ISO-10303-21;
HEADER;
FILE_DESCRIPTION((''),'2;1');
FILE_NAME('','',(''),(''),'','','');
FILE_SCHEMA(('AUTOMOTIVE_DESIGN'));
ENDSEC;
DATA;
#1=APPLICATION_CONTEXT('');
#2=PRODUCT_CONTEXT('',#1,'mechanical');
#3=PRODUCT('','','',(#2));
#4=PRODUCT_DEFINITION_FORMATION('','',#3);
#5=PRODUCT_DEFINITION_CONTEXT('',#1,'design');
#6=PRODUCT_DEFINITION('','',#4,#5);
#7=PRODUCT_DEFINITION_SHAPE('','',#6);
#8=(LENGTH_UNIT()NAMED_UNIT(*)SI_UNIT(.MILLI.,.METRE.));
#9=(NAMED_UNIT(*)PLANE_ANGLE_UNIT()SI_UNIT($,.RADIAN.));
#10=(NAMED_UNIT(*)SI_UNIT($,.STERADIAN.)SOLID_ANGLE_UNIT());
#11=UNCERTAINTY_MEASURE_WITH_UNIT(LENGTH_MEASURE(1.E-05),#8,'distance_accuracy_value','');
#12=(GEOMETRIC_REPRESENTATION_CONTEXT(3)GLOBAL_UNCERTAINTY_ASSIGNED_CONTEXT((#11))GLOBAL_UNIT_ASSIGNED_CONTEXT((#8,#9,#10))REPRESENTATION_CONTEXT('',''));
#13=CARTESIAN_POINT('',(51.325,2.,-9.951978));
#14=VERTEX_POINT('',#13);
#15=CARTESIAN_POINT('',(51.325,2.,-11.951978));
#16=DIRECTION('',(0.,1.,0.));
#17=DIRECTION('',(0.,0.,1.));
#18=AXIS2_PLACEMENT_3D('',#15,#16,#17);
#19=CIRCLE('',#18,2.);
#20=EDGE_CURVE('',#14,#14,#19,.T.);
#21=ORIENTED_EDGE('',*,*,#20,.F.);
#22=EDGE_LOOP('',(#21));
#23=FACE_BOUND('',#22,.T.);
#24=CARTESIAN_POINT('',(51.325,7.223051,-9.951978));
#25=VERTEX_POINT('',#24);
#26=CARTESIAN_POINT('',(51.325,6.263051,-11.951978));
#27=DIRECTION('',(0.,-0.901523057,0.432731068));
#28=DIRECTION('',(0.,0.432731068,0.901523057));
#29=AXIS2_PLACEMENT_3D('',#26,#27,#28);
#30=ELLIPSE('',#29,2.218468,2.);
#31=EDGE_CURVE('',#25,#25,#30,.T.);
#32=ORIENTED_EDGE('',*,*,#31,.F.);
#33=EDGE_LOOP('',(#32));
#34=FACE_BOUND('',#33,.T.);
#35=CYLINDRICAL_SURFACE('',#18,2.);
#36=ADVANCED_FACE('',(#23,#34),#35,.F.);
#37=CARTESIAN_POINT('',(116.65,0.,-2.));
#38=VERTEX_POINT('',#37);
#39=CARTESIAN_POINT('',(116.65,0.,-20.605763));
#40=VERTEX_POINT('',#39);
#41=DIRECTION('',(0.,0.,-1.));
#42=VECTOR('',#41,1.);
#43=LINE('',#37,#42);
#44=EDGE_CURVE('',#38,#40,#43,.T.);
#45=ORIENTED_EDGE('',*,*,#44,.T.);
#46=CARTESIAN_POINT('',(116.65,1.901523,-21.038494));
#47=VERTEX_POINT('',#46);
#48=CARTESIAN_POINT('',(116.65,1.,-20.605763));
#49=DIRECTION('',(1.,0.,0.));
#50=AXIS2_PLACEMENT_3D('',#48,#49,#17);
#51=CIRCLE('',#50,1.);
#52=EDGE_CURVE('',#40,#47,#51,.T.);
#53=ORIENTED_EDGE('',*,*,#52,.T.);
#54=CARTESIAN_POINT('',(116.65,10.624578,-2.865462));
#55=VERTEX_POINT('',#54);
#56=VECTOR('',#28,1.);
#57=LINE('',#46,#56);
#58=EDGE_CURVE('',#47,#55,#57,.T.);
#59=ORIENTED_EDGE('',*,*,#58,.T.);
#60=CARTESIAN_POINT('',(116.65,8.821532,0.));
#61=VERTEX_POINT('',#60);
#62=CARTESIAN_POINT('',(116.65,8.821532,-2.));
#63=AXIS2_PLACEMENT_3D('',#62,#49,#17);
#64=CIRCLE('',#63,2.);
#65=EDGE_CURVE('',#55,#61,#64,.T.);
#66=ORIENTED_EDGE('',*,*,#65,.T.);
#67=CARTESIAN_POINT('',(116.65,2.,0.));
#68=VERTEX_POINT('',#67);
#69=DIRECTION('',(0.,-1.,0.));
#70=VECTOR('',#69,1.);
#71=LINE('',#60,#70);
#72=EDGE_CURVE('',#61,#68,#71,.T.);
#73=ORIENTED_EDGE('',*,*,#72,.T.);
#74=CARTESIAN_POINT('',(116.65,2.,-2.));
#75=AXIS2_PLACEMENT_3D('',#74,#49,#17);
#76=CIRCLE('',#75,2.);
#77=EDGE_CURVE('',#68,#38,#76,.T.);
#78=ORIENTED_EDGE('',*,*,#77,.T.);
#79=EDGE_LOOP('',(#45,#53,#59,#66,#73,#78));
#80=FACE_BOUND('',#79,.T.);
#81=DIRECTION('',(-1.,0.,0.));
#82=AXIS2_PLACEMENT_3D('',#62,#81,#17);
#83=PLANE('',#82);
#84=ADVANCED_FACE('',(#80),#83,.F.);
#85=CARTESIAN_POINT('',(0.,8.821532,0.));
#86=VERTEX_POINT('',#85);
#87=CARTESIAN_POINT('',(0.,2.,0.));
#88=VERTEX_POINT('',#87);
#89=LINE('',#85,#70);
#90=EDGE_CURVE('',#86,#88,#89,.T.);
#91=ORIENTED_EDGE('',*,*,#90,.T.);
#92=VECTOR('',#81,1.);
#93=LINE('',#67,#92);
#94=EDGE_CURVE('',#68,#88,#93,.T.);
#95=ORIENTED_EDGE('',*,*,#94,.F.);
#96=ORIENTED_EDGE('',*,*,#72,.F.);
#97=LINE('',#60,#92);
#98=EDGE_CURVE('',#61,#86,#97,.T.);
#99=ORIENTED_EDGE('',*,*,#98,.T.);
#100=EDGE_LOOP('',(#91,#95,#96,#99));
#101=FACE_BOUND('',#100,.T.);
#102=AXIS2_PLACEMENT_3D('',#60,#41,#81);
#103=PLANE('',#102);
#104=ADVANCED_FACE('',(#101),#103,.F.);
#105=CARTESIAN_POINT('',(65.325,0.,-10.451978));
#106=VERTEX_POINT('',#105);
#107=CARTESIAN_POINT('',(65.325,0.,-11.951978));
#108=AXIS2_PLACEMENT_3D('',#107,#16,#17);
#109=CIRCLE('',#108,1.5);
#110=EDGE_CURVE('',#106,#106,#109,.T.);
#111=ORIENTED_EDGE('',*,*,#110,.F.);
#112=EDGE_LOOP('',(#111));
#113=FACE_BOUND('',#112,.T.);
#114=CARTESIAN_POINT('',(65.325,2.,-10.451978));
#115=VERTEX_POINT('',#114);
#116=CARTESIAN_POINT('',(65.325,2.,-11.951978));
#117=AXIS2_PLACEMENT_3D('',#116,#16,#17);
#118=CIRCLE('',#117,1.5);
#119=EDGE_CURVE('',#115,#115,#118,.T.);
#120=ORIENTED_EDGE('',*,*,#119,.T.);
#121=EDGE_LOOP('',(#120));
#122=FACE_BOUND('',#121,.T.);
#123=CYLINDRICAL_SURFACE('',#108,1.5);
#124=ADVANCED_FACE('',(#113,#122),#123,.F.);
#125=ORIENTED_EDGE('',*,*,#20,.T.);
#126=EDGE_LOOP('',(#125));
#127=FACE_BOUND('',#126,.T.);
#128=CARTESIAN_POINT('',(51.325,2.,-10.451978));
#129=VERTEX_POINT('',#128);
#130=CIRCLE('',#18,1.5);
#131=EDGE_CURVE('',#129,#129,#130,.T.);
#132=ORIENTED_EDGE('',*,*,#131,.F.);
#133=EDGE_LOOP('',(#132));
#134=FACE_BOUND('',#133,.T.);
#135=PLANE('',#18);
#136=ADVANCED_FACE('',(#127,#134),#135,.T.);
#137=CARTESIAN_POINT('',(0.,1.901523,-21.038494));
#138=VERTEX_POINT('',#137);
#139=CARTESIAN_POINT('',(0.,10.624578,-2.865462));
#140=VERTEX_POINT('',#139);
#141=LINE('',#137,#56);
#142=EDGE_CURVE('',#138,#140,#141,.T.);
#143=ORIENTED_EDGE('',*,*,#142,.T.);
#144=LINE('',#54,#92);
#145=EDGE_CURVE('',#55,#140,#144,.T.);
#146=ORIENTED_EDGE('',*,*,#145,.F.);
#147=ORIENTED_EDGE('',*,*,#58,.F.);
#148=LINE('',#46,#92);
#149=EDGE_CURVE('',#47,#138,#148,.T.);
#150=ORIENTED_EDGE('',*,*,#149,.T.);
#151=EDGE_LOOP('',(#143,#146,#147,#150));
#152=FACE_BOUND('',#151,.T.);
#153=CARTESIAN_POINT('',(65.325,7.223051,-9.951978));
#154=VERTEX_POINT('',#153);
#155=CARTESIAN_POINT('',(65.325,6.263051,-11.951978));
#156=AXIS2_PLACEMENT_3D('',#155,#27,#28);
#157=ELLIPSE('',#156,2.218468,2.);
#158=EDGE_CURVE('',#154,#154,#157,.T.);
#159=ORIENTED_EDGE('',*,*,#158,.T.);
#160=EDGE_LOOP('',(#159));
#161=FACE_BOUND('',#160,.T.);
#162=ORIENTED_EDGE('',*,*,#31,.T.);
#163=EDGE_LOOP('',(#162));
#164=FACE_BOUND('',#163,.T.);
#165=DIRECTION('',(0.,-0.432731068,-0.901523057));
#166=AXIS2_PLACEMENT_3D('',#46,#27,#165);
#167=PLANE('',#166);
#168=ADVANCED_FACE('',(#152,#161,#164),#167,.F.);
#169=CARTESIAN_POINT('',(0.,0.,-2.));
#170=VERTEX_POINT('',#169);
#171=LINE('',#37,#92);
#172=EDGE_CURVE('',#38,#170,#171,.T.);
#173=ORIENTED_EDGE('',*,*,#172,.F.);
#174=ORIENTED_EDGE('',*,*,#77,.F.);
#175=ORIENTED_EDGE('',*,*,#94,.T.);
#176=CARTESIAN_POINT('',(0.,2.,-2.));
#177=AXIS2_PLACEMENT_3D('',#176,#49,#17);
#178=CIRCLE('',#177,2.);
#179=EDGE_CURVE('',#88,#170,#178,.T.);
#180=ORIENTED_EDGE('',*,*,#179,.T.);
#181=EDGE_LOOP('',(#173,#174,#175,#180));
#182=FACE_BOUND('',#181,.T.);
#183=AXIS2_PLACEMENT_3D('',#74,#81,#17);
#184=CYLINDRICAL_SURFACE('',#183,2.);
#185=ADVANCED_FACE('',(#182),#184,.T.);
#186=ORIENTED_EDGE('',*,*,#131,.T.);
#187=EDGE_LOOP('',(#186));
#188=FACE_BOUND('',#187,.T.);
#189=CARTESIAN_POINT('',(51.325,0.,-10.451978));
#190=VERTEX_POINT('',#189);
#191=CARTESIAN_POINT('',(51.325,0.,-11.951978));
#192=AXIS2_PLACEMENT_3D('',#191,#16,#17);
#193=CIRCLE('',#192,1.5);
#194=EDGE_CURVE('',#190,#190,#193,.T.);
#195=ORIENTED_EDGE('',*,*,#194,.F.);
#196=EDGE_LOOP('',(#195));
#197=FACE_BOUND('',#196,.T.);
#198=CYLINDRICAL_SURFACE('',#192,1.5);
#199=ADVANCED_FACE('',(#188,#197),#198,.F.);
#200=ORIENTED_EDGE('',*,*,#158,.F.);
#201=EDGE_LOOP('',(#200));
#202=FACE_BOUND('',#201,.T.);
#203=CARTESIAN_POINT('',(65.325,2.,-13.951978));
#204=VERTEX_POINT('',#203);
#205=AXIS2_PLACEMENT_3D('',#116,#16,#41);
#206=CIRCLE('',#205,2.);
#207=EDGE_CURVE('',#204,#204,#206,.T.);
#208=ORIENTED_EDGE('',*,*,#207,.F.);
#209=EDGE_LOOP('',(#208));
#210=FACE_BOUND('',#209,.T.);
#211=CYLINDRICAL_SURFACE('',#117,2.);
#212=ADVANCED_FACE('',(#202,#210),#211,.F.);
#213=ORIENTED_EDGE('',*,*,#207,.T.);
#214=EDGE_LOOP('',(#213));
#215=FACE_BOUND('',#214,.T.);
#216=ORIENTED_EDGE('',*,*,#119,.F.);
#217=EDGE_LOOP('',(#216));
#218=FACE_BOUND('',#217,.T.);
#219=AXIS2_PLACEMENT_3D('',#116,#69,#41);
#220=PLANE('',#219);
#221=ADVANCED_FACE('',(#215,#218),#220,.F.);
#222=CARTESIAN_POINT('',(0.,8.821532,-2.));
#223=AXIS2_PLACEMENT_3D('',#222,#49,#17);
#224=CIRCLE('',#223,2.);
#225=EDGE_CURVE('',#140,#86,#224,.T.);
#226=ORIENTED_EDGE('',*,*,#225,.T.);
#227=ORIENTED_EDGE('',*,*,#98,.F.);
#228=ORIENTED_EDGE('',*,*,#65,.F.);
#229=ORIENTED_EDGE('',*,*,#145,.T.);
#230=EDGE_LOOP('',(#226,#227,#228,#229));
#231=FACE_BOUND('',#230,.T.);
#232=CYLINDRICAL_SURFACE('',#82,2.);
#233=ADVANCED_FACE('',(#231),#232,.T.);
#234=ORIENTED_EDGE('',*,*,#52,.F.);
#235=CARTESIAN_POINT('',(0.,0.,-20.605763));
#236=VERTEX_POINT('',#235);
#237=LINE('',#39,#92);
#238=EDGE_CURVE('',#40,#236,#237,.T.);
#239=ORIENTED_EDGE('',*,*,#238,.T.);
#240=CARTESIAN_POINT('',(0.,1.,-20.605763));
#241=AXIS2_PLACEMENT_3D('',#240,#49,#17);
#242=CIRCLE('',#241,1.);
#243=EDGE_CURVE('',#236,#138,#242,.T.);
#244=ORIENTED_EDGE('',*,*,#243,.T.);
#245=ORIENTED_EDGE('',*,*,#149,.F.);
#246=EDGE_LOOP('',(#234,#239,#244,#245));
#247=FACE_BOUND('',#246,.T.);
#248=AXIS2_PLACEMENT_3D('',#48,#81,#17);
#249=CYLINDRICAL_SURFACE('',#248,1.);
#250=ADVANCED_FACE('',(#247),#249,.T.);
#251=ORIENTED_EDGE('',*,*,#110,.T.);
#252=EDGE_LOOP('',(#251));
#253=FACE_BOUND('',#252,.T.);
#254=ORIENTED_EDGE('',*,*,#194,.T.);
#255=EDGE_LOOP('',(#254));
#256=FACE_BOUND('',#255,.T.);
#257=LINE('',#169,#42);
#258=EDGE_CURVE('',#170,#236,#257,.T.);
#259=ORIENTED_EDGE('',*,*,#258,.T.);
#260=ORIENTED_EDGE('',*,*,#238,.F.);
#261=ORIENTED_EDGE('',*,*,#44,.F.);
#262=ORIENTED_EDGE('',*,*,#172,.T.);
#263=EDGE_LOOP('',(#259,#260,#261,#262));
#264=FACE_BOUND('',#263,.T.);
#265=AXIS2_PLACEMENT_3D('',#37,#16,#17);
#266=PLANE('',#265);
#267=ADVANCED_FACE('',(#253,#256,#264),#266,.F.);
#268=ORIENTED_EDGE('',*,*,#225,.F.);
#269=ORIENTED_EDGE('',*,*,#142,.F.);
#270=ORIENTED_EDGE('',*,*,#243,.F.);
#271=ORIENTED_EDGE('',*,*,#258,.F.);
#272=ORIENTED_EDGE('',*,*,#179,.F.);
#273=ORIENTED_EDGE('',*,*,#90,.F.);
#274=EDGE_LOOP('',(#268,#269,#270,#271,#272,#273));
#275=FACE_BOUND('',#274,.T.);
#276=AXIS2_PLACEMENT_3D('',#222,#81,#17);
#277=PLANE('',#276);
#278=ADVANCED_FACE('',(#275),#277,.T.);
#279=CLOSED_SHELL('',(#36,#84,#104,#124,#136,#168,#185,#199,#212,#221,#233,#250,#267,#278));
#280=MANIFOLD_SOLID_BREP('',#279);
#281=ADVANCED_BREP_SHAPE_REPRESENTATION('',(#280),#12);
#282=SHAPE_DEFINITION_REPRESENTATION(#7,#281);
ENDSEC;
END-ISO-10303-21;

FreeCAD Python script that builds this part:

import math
import FreeCAD as App
import Part
import Sketcher
from FreeCAD import Vector

doc = App.newDocument("Part")
body = doc.addObject("PartDesign::Body", "Body")

# Sketch on YZ plane
sketch1 = doc.addObject("Sketcher::SketchObject", "Sketch")
body.addObject(sketch1)
sketch1.AttachmentSupport = (doc.YZ_Plane, [""])
sketch1.MapMode = "FlatFace"
sketch1.addGeometry(Part.LineSegment(Vector(0, -2, 0), Vector(0, -20.6, 0)), False)
sketch1.addGeometry(Part.ArcOfCircle(Part.Circle(Vector(1, -20.6, 0), Vector(0, 0, 1), 1), math.radians(180), math.radians(334)), False)
sketch1.addGeometry(Part.LineSegment(Vector(1.9, -21, 0), Vector(10.6, -2.9, 0)), False)
sketch1.addGeometry(Part.ArcOfCircle(Part.Circle(Vector(8.8, -2, 0), Vector(0, 0, 1), 2), math.radians(-26), math.radians(90)), False)
sketch1.addGeometry(Part.LineSegment(Vector(8.8, 0, 0), Vector(2, 0, 0)), False)
sketch1.addGeometry(Part.ArcOfCircle(Part.Circle(Vector(2, -2, 0), Vector(0, 0, 1), 2), math.radians(90), math.radians(180)), False)
sketch1.addConstraint(Sketcher.Constraint("Tangent", 0, 2, 1, 1))
sketch1.addConstraint(Sketcher.Constraint("Tangent", 1, 2, 2, 1))
sketch1.addConstraint(Sketcher.Constraint("Tangent", 2, 2, 3, 1))
sketch1.addConstraint(Sketcher.Constraint("Tangent", 3, 2, 4, 1))
sketch1.addConstraint(Sketcher.Constraint("Tangent", 4, 2, 5, 1))
sketch1.addConstraint(Sketcher.Constraint("Tangent", 5, 2, 0, 1))
sketch1.addConstraint(Sketcher.Constraint("Vertical", 0))
sketch1.addConstraint(Sketcher.Constraint("Horizontal", 4))
sketch1.addConstraint(Sketcher.Constraint("Equal", 3, 5))
sketch1.addConstraint(Sketcher.Constraint("PointOnObject", 0, 2, -2))
sketch1.addConstraint(Sketcher.Constraint("PointOnObject", 3, 2, -1))
sketch1.addConstraint(Sketcher.Constraint("Radius", 1, 1.0))
sketch1.addConstraint(Sketcher.Constraint("Radius", 3, 2.0))
sketch1.addConstraint(Sketcher.Constraint("DistanceY", 1, 3, 2, 2, 17.7403))
sketch1.addConstraint(Sketcher.Constraint("DistanceX", 4, 2, 4, 1, 6.821532))
pad1 = doc.addObject("PartDesign::Pad", "Pad")
body.addObject(pad1)
pad1.Profile = sketch1
pad1.Length = 116.65

# Sketch on XZ plane
sketch2 = doc.addObject("Sketcher::SketchObject", "Sketch001")
body.addObject(sketch2)
sketch2.AttachmentSupport = (doc.XZ_Plane, [""])
sketch2.MapMode = "FlatFace"
sketch2.AttachmentOffset = App.Placement(Vector(0, 0, -10), App.Rotation())
sketch2.addGeometry(Part.Circle(Vector(51.3, -12, 0), Vector(0, 0, 1), 2), False)
sketch2.addGeometry(Part.Circle(Vector(65.3, -12, 0), Vector(0, 0, 1), 2), False)
sketch2.addConstraint(Sketcher.Constraint("Equal", 0, 1))
sketch2.addConstraint(Sketcher.Constraint("Horizontal", 0, 3, 1, 3))
sketch2.addConstraint(Sketcher.Constraint("Diameter", 0, 4.0))
sketch2.addConstraint(Sketcher.Constraint("DistanceX", 0, 3, 1, 3, 14.0))
sketch2.addConstraint(Sketcher.Constraint("DistanceX", -1, 1, 0, 3, 51.325))
sketch2.addConstraint(Sketcher.Constraint("DistanceY", 0, 3, -1, 1, 11.951978))
pocket1 = doc.addObject("PartDesign::Pocket", "Pocket")
body.addObject(pocket1)
pocket1.Profile = sketch2
pocket1.Length = 8
pocket1.Reversed = True

# Sketch on XZ plane
sketch3 = doc.addObject("Sketcher::SketchObject", "Sketch002")
body.addObject(sketch3)
sketch3.AttachmentSupport = (doc.XZ_Plane, [""])
sketch3.MapMode = "FlatFace"
sketch3.AttachmentOffset = App.Placement(Vector(0, 0, -2), App.Rotation())
sketch3.addGeometry(Part.Circle(Vector(51.3, -12, 0), Vector(0, 0, 1), 1.5), False)
sketch3.addGeometry(Part.Circle(Vector(65.3, -12, 0), Vector(0, 0, 1), 1.5), False)
sketch3.addConstraint(Sketcher.Constraint("Equal", 0, 1))
sketch3.addConstraint(Sketcher.Constraint("Horizontal", 0, 3, 1, 3))
sketch3.addConstraint(Sketcher.Constraint("Diameter", 0, 3.0))
sketch3.addConstraint(Sketcher.Constraint("DistanceX", 0, 3, 1, 3, 14.0))
sketch3.addConstraint(Sketcher.Constraint("DistanceX", -1, 1, 0, 3, 51.325))
sketch3.addConstraint(Sketcher.Constraint("DistanceY", 0, 3, -1, 1, 11.951978))
pocket2 = doc.addObject("PartDesign::Pocket", "Pocket001")
body.addObject(pocket2)
pocket2.Profile = sketch3
pocket2.Type = "ThroughAll"
pocket2.Reversed = True

doc.recompute()
